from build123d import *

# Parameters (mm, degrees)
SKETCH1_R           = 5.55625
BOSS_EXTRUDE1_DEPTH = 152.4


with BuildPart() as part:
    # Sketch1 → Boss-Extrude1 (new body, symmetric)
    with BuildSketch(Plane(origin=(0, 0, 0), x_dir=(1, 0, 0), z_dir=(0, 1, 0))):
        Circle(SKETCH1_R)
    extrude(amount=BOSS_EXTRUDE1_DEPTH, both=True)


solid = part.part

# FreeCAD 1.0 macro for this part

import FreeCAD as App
import Part
import Sketcher
from FreeCAD import Vector
Q = App.Units.Quantity

doc = App.newDocument("Part")
params = doc.addObject("Spreadsheet::Sheet", "Params")
for row, (alias, value) in enumerate([
    ("sketch1_diameter", "0.4375 in"),
    ("pad1_length", "12 in"),
], start=1):
    params.set(f"A{row}", alias)
    params.set(f"B{row}", "=" + value)
    params.setAlias(f"B{row}", alias)

body = doc.addObject("PartDesign::Body", "Body")

sketch1 = doc.addObject("Sketcher::SketchObject", "Sketch")
body.addObject(sketch1)
sketch1.AttachmentSupport = (doc.XZ_Plane, [""])
sketch1.MapMode = "FlatFace"
sketch1.addGeometry(Part.Circle(Vector(0, 0, 0), Vector(0, 0, 1), 6), False)
sketch1.addConstraint([
    Sketcher.Constraint("Coincident", 0, 3, -1, 1),
    Sketcher.Constraint("Diameter", 0, Q("0.4375 in")),
])
sketch1.setExpression("Constraints[1]", "Params.sketch1_diameter")
pad1 = doc.addObject("PartDesign::Pad", "Pad")
body.addObject(pad1)
pad1.Profile = sketch1
pad1.setExpression("Length", "Params.pad1_length")
pad1.Midplane = True

doc.recompute()
